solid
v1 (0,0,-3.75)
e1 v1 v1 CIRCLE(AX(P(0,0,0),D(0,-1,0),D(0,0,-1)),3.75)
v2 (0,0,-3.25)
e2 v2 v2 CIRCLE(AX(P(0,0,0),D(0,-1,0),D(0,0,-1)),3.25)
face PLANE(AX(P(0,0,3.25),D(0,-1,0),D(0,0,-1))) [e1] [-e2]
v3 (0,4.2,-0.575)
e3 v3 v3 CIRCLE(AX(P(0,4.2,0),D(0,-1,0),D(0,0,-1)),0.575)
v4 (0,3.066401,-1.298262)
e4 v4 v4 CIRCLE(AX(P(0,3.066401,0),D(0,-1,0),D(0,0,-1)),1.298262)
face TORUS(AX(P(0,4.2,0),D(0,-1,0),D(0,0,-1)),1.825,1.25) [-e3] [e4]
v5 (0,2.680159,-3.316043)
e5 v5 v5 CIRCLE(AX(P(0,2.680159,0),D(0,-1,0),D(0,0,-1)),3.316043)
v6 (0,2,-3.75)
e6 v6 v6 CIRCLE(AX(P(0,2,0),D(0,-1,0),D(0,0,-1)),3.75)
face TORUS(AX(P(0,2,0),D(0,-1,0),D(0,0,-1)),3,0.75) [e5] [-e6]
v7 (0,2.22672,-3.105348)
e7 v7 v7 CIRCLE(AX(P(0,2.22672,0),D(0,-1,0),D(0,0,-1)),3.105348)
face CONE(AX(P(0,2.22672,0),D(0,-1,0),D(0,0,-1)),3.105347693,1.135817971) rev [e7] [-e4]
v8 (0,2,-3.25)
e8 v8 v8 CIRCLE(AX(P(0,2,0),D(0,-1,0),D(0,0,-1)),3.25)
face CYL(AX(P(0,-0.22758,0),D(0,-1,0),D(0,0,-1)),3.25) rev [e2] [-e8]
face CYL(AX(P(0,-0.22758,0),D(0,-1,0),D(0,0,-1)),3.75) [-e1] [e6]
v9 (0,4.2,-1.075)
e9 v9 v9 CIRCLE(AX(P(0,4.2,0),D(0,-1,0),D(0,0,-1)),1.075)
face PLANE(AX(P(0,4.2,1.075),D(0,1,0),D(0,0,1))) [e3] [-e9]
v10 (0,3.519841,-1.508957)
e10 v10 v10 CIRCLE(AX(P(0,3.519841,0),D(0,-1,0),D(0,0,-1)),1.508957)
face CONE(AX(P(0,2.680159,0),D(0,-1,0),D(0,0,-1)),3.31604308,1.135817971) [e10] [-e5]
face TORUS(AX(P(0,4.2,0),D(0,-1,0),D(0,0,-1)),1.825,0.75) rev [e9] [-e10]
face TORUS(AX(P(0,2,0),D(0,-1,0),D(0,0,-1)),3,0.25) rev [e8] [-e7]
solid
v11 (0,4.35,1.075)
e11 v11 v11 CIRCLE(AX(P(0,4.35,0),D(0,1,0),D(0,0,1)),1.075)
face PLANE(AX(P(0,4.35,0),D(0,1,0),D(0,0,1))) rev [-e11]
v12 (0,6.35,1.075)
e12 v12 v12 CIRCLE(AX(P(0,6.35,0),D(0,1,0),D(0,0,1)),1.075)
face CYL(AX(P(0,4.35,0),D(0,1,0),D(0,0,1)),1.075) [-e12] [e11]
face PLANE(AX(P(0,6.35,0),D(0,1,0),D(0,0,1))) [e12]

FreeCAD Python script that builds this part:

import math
import FreeCAD as App
import Part
import Sketcher
from FreeCAD import Vector

doc = App.newDocument("Part")
body = doc.addObject("PartDesign::Body", "Body")

sketch1 = doc.addObject("Sketcher::SketchObject", "Sketch")
body.addObject(sketch1)
sketch1.AttachmentSupport = (doc.YZ_Plane, [""])
sketch1.MapMode = "FlatFace"
sketch1.addGeometry(Part.LineSegment(Vector(2, 3.75, 0), Vector(0, 3.75, 0)), False)
sketch1.addGeometry(Part.LineSegment(Vector(0, 3.75, 0), Vector(0, 3.25, 0)), False)
sketch1.addGeometry(Part.LineSegment(Vector(0, 3.25, 0), Vector(2, 3.25, 0)), False)
sketch1.addGeometry(Part.ArcOfCircle(Part.Circle(Vector(2, 3, 0), Vector(0, 0, 1), 0.25), math.radians(25), math.radians(90)), False)
sketch1.addGeometry(Part.LineSegment(Vector(2.23, 3.11, 0), Vector(3.07, 1.3, 0)), False)
sketch1.addGeometry(Part.ArcOfCircle(Part.Circle(Vector(4.2, 1.83, 0), Vector(0, 0, 1), 1.25), math.radians(-155), math.radians(-90)), False)
sketch1.addGeometry(Part.LineSegment(Vector(4.2, 0.57, 0), Vector(4.2, 1.07, 0)), False)
sketch1.addGeometry(Part.ArcOfCircle(Part.Circle(Vector(4.2, 1.83, 0), Vector(0, 0, 1), 0.75), math.radians(-155), math.radians(-90)), False)
sketch1.addGeometry(Part.LineSegment(Vector(3.52, 1.51, 0), Vector(2.68, 3.32, 0)), False)
sketch1.addGeometry(Part.ArcOfCircle(Part.Circle(Vector(2, 3, 0), Vector(0, 0, 1), 0.75), math.radians(25), math.radians(90)), False)
sketch1.addConstraint(Sketcher.Constraint("Coincident", 0, 2, 1, 1))
sketch1.addConstraint(Sketcher.Constraint("Coincident", 1, 2, 2, 1))
sketch1.addConstraint(Sketcher.Constraint("Tangent", 2, 2, 3, 2))
sketch1.addConstraint(Sketcher.Constraint("Tangent", 3, 1, 4, 1))
sketch1.addConstraint(Sketcher.Constraint("Tangent", 4, 2, 5, 1))
sketch1.addConstraint(Sketcher.Constraint("Coincident", 5, 2, 6, 1))
sketch1.addConstraint(Sketcher.Constraint("Coincident", 6, 2, 7, 2))
sketch1.addConstraint(Sketcher.Constraint("Tangent", 7, 1, 8, 1))
sketch1.addConstraint(Sketcher.Constraint("Tangent", 8, 2, 9, 1))
sketch1.addConstraint(Sketcher.Constraint("Tangent", 9, 2, 0, 1))
sketch1.addConstraint(Sketcher.Constraint("Horizontal", 0))
sketch1.addConstraint(Sketcher.Constraint("Vertical", 1))
sketch1.addConstraint(Sketcher.Constraint("Horizontal", 2))
sketch1.addConstraint(Sketcher.Constraint("Vertical", 6))
sketch1.addConstraint(Sketcher.Constraint("Coincident", 7, 3, 5, 3))
sketch1.addConstraint(Sketcher.Constraint("Coincident", 9, 3, 3, 3))
sketch1.addConstraint(Sketcher.Constraint("Equal", 7, 9))
sketch1.addConstraint(Sketcher.Constraint("PointOnObject", 0, 2, -2))
sketch1.addConstraint(Sketcher.Constraint("Parallel", 4, 8))
sketch1.addConstraint(Sketcher.Constraint("Vertical", 7, 3, 5, 2))
sketch1.addConstraint(Sketcher.Constraint("DistanceX", 0, 2, 0, 1, 2.0))
sketch1.addConstraint(Sketcher.Constraint("Radius", 3, 0.25))
sketch1.addConstraint(Sketcher.Constraint("Radius", 5, 1.25))
sketch1.addConstraint(Sketcher.Constraint("DistanceY", -1, 1, 3, 3, 3.0))
sketch1.addConstraint(Sketcher.Constraint("DistanceX", -1, 1, 5, 3, 4.2))
sketch1.addConstraint(Sketcher.Constraint("DistanceY", -1, 1, 5, 3, 1.825))
revolution = doc.addObject("PartDesign::Revolution", "Revolution")
body.addObject(revolution)
revolution.Profile = sketch1
revolution.ReferenceAxis = (sketch1, ["H_Axis"])
revolution.Angle = 360
body2 = doc.addObject("PartDesign::Body", "Body001")

sketch2 = doc.addObject("Sketcher::SketchObject", "Sketch001")
body2.addObject(sketch2)
sketch2.AttachmentSupport = (doc.getObject("XZ_Plane001"), [""])
sketch2.MapMode = "FlatFace"
sketch2.AttachmentOffset = App.Placement(Vector(0, 0, -6.35), App.Rotation())
sketch2.addGeometry(Part.Circle(Vector(0, 0, 0), Vector(0, 0, 1), 1.1), False)
sketch2.addConstraint(Sketcher.Constraint("Coincident", 0, 3, -1, 1))
sketch2.addConstraint(Sketcher.Constraint("Diameter", 0, 2.15))
pad1 = doc.addObject("PartDesign::Pad", "Pad")
body2.addObject(pad1)
pad1.Profile = sketch2
pad1.Length = 2

doc.recompute()
